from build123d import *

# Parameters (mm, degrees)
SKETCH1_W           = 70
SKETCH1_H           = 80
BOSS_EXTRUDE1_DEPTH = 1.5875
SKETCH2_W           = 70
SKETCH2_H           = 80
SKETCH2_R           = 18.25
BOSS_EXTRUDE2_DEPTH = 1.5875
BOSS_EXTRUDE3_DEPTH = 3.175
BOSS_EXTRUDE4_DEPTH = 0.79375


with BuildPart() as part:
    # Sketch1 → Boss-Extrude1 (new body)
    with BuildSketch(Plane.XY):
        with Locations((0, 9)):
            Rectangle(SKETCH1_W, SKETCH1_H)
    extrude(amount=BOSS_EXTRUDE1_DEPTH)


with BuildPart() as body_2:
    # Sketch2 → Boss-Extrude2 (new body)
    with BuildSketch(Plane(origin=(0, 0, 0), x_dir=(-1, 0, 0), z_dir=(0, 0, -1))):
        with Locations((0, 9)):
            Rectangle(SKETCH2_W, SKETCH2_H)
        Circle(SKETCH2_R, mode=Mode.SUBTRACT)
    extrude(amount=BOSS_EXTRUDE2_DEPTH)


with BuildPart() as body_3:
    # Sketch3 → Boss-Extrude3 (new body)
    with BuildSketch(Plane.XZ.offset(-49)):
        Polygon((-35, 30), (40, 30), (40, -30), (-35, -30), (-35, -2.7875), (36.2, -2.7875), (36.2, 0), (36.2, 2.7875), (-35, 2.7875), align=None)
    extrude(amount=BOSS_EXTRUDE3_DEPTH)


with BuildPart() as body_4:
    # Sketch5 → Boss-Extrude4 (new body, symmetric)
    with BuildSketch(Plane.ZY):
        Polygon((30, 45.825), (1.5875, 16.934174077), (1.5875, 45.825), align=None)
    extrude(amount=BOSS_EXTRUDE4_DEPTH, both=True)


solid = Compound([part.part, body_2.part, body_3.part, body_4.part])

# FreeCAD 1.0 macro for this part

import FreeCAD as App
import Part
import Sketcher
Q = App.Units.Quantity


def add_polygon(sketch, points):
    """Adds a closed chain of lines whose ends are joined by coincident constraints."""
    first, n = sketch.GeometryCount, len(points)
    for a, b in zip(points, points[1:] + points[:1]):
        sketch.addGeometry(Part.LineSegment(App.Vector(*a, 0), App.Vector(*b, 0)), False)
    for i in range(n):
        sketch.addConstraint(Sketcher.Constraint("Coincident", first + i, 2, first + (i + 1) % n, 1))

doc = App.newDocument("Part")
body = doc.addObject("PartDesign::Body", "Body")

# Sketch on XY plane
sketch1 = body.newObject("Sketcher::SketchObject", "Sketch")
sketch1.AttachmentSupport = (doc.getObject("XY_Plane"), [""])
sketch1.MapMode = "FlatFace"
add_polygon(sketch1, [(-35, 49), (-35, -31), (35, -31), (35, 49)])  # lines 0-3
sketch1.addConstraint(Sketcher.Constraint("Vertical", 0))
sketch1.addConstraint(Sketcher.Constraint("Horizontal", 1))
sketch1.addConstraint(Sketcher.Constraint("Vertical", 2))
sketch1.addConstraint(Sketcher.Constraint("Horizontal", 3))
sketch1.addConstraint(Sketcher.Constraint("DistanceX", 1, 1, 1, 2, Q("70 mm")))
sketch1.addConstraint(Sketcher.Constraint("DistanceY", 0, 2, 0, 1, Q("80 mm")))
sketch1.addConstraint(Sketcher.Constraint("DistanceX", 0, 2, -1, 1, Q("35 mm")))
sketch1.addConstraint(Sketcher.Constraint("DistanceY", 0, 2, -1, 1, Q("31 mm")))
pad1 = body.newObject("PartDesign::Pad", "Pad")
pad1.Profile = sketch1
pad1.Length = 1.5875
body2 = doc.addObject("PartDesign::Body", "Body001")

# Sketch on XY plane
sketch2 = body2.newObject("Sketcher::SketchObject", "Sketch001")
sketch2.AttachmentSupport = (doc.getObject("XY_Plane001"), [""])
sketch2.MapMode = "FlatFace"
add_polygon(sketch2, [(35, 49), (35, -31), (-35, -31), (-35, 49)])  # lines 0-3
sketch2.addGeometry(Part.Circle(App.Vector(0, 0, 0), App.Vector(0, 0, 1), 18), False)  # 4
sketch2.addConstraint(Sketcher.Constraint("Vertical", 0))
sketch2.addConstraint(Sketcher.Constraint("Horizontal", 1))
sketch2.addConstraint(Sketcher.Constraint("Vertical", 2))
sketch2.addConstraint(Sketcher.Constraint("Horizontal", 3))
sketch2.addConstraint(Sketcher.Constraint("Coincident", 4, 3, -1, 1))
sketch2.addConstraint(Sketcher.Constraint("Diameter", 4, Q("36.5 mm")))
sketch2.addConstraint(Sketcher.Constraint("DistanceX", 1, 2, 1, 1, Q("70 mm")))
sketch2.addConstraint(Sketcher.Constraint("DistanceY", 0, 2, 0, 1, Q("80 mm")))
sketch2.addConstraint(Sketcher.Constraint("DistanceX", -1, 1, 0, 2, Q("35 mm")))
sketch2.addConstraint(Sketcher.Constraint("DistanceY", 0, 2, -1, 1, Q("31 mm")))
pad2 = body2.newObject("PartDesign::Pad", "Pad001")
pad2.Profile = sketch2
pad2.Length = 1.5875
pad2.Reversed = True
body3 = doc.addObject("PartDesign::Body", "Body002")

# Sketch on XZ plane
sketch3 = body3.newObject("Sketcher::SketchObject", "Sketch002")
sketch3.AttachmentSupport = (doc.getObject("XZ_Plane002"), [""])
sketch3.MapMode = "FlatFace"
sketch3.AttachmentOffset = App.Placement(App.Vector(0, 0, -49), App.Rotation())
add_polygon(sketch3, [(40, 30), (-35, 30), (-35, 3), (36, 3), (36, -3), (-35, -3), (-35, -30), (40, -30)])  # lines 0-7
sketch3.addConstraint(Sketcher.Constraint("Horizontal", 0))
sketch3.addConstraint(Sketcher.Constraint("Vertical", 1))
sketch3.addConstraint(Sketcher.Constraint("Horizontal", 2))
sketch3.addConstraint(Sketcher.Constraint("Vertical", 3))
sketch3.addConstraint(Sketcher.Constraint("Horizontal", 4))
sketch3.addConstraint(Sketcher.Constraint("Vertical", 5))
sketch3.addConstraint(Sketcher.Constraint("Horizontal", 6))
sketch3.addConstraint(Sketcher.Constraint("Vertical", 7))
sketch3.addConstraint(Sketcher.Constraint("Symmetric", 1, 2, 4, 2, -1))
sketch3.addConstraint(Sketcher.Constraint("Equal", 1, 5))
sketch3.addConstraint(Sketcher.Constraint("DistanceX", 0, 2, 0, 1, Q("75 mm")))
sketch3.addConstraint(Sketcher.Constraint("DistanceY", 7, 1, 7, 2, Q("60 mm")))
sketch3.addConstraint(Sketcher.Constraint("DistanceX", 2, 1, 2, 2, Q("71.2 mm")))
sketch3.addConstraint(Sketcher.Constraint("DistanceX", 0, 2, -1, 1, Q("35 mm")))
sketch3.addConstraint(Sketcher.Constraint("DistanceY", 3, 2, 3, 1, Q("5.575 mm")))
pad3 = body3.newObject("PartDesign::Pad", "Pad002")
pad3.Profile = sketch3
pad3.Length = 3.175
body4 = doc.addObject("PartDesign::Body", "Body003")

# Sketch on YZ plane
sketch4 = body4.newObject("Sketcher::SketchObject", "Sketch003")
sketch4.AttachmentSupport = (doc.getObject("YZ_Plane003"), [""])
sketch4.MapMode = "FlatFace"
add_polygon(sketch4, [(17, 2), (46, 30), (46, 2)])  # lines 0-2
sketch4.addConstraint(Sketcher.Constraint("Vertical", 1))
sketch4.addConstraint(Sketcher.Constraint("Horizontal", 2))
sketch4.addConstraint(Sketcher.Constraint("DistanceY", -1, 1, 0, 2, Q("30 mm")))
sketch4.addConstraint(Sketcher.Constraint("DistanceY", 1, 2, 1, 1, Q("28.4125 mm")))
sketch4.addConstraint(Sketcher.Constraint("DistanceX", -1, 1, 0, 2, Q("45.825 mm")))
sketch4.addConstraint(Sketcher.Constraint("Distance", 0, Q("40.520982 mm")))
pad4 = body4.newObject("PartDesign::Pad", "Pad003")
pad4.Profile = sketch4
pad4.Length = 1.5875
pad4.Midplane = True

doc.recompute()
